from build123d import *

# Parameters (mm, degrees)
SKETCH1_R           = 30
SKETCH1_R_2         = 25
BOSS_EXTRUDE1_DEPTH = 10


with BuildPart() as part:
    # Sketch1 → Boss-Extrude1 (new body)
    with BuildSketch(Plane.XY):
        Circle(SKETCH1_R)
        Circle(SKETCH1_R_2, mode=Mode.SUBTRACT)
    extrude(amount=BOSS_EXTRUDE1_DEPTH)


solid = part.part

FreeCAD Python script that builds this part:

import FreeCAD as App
import Part
import Sketcher
from FreeCAD import Vector

doc = App.newDocument("Part")
body = doc.addObject("PartDesign::Body", "Body")

# Sketch on XY plane
sketch1 = body.newObject("Sketcher::SketchObject", "Sketch")
sketch1.AttachmentSupport = (doc.getObject("XY_Plane"), [""])
sketch1.MapMode = "FlatFace"
sketch1.addGeometry(Part.Circle(Vector(0, 0, 0), Vector(0, 0, 1), 30), False)
sketch1.addGeometry(Part.Circle(Vector(0, 0, 0), Vector(0, 0, 1), 25), False)
sketch1.addConstraint(Sketcher.Constraint("Coincident", 0, 3, -1, 1))
sketch1.addConstraint(Sketcher.Constraint("Coincident", 1, 3, -1, 1))
sketch1.addConstraint(Sketcher.Constraint("Diameter", 0, 60.0))
sketch1.addConstraint(Sketcher.Constraint("Diameter", 1, 50.0))
pad1 = body.newObject("PartDesign::Pad", "Pad")
pad1.Profile = sketch1
pad1.Length = 10

doc.recompute()
